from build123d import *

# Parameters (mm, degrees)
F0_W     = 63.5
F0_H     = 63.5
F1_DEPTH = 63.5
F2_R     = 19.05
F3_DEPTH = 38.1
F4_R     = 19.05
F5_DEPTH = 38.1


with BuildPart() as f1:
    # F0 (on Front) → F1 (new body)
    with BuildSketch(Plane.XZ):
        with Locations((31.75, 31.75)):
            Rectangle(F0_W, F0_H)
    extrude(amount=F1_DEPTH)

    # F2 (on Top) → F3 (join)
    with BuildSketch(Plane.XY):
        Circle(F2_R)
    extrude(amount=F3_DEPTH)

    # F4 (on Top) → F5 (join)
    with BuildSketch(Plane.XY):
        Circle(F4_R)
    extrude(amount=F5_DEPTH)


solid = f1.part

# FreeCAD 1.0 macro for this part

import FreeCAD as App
import Part
import Sketcher

V = App.Vector
Q = App.Units.Quantity

doc = App.newDocument("Part")
body = doc.addObject("PartDesign::Body", "Body")

# Sketch on XZ plane
sketch1 = body.newObject("Sketcher::SketchObject", "Sketch")
sketch1.AttachmentSupport = (doc.getObject("XZ_Plane"), [""])
sketch1.MapMode = "FlatFace"
sketch1.addGeometry([
    Part.LineSegment(V(0, 64, 0), V(0, 0, 0)),
    Part.LineSegment(V(0, 0, 0), V(64, 0, 0)),
    Part.LineSegment(V(64, 0, 0), V(64, 64, 0)),
    Part.LineSegment(V(64, 64, 0), V(0, 64, 0)),
], False)
sketch1.addConstraint([
    Sketcher.Constraint("Coincident", 0, 2, 1, 1),
    Sketcher.Constraint("Coincident", 1, 2, 2, 1),
    Sketcher.Constraint("Coincident", 2, 2, 3, 1),
    Sketcher.Constraint("Coincident", 3, 2, 0, 1),
    Sketcher.Constraint("Vertical", 0),
    Sketcher.Constraint("Horizontal", 1),
    Sketcher.Constraint("Vertical", 2),
    Sketcher.Constraint("Horizontal", 3),
    Sketcher.Constraint("Coincident", 0, 2, -1, 1),
    Sketcher.Constraint("Equal", 3, 0),
    Sketcher.Constraint("DistanceX", 1, 1, 1, 2, Q("2.5 in")),
])
pad1 = body.newObject("PartDesign::Pad", "Pad")
pad1.Profile = sketch1
pad1.Length = Q("2.5 in")

# Sketch on XY plane
sketch2 = body.newObject("Sketcher::SketchObject", "Sketch001")
sketch2.AttachmentSupport = (doc.getObject("XY_Plane"), [""])
sketch2.MapMode = "FlatFace"
sketch2.addGeometry(Part.Circle(V(0, 0, 0), V(0, 0, 1), 19), False)
sketch2.addConstraint([
    Sketcher.Constraint("Coincident", 0, 3, -1, 1),
    Sketcher.Constraint("Diameter", 0, Q("1.5 in")),
])
pad2 = body.newObject("PartDesign::Pad", "Pad001")
pad2.Profile = sketch2
pad2.Length = Q("1.5 in")

# Sketch on XY plane
sketch3 = body.newObject("Sketcher::SketchObject", "Sketch002")
sketch3.AttachmentSupport = (doc.getObject("XY_Plane"), [""])
sketch3.MapMode = "FlatFace"
sketch3.addGeometry(Part.Circle(V(0, 0, 0), V(0, 0, 1), 19), False)
sketch3.addConstraint([
    Sketcher.Constraint("Coincident", 0, 3, -1, 1),
    Sketcher.Constraint("Diameter", 0, Q("1.5 in")),
])
pad3 = body.newObject("PartDesign::Pad", "Pad002")
pad3.Profile = sketch3
pad3.Length = Q("1.5 in")

doc.recompute()
